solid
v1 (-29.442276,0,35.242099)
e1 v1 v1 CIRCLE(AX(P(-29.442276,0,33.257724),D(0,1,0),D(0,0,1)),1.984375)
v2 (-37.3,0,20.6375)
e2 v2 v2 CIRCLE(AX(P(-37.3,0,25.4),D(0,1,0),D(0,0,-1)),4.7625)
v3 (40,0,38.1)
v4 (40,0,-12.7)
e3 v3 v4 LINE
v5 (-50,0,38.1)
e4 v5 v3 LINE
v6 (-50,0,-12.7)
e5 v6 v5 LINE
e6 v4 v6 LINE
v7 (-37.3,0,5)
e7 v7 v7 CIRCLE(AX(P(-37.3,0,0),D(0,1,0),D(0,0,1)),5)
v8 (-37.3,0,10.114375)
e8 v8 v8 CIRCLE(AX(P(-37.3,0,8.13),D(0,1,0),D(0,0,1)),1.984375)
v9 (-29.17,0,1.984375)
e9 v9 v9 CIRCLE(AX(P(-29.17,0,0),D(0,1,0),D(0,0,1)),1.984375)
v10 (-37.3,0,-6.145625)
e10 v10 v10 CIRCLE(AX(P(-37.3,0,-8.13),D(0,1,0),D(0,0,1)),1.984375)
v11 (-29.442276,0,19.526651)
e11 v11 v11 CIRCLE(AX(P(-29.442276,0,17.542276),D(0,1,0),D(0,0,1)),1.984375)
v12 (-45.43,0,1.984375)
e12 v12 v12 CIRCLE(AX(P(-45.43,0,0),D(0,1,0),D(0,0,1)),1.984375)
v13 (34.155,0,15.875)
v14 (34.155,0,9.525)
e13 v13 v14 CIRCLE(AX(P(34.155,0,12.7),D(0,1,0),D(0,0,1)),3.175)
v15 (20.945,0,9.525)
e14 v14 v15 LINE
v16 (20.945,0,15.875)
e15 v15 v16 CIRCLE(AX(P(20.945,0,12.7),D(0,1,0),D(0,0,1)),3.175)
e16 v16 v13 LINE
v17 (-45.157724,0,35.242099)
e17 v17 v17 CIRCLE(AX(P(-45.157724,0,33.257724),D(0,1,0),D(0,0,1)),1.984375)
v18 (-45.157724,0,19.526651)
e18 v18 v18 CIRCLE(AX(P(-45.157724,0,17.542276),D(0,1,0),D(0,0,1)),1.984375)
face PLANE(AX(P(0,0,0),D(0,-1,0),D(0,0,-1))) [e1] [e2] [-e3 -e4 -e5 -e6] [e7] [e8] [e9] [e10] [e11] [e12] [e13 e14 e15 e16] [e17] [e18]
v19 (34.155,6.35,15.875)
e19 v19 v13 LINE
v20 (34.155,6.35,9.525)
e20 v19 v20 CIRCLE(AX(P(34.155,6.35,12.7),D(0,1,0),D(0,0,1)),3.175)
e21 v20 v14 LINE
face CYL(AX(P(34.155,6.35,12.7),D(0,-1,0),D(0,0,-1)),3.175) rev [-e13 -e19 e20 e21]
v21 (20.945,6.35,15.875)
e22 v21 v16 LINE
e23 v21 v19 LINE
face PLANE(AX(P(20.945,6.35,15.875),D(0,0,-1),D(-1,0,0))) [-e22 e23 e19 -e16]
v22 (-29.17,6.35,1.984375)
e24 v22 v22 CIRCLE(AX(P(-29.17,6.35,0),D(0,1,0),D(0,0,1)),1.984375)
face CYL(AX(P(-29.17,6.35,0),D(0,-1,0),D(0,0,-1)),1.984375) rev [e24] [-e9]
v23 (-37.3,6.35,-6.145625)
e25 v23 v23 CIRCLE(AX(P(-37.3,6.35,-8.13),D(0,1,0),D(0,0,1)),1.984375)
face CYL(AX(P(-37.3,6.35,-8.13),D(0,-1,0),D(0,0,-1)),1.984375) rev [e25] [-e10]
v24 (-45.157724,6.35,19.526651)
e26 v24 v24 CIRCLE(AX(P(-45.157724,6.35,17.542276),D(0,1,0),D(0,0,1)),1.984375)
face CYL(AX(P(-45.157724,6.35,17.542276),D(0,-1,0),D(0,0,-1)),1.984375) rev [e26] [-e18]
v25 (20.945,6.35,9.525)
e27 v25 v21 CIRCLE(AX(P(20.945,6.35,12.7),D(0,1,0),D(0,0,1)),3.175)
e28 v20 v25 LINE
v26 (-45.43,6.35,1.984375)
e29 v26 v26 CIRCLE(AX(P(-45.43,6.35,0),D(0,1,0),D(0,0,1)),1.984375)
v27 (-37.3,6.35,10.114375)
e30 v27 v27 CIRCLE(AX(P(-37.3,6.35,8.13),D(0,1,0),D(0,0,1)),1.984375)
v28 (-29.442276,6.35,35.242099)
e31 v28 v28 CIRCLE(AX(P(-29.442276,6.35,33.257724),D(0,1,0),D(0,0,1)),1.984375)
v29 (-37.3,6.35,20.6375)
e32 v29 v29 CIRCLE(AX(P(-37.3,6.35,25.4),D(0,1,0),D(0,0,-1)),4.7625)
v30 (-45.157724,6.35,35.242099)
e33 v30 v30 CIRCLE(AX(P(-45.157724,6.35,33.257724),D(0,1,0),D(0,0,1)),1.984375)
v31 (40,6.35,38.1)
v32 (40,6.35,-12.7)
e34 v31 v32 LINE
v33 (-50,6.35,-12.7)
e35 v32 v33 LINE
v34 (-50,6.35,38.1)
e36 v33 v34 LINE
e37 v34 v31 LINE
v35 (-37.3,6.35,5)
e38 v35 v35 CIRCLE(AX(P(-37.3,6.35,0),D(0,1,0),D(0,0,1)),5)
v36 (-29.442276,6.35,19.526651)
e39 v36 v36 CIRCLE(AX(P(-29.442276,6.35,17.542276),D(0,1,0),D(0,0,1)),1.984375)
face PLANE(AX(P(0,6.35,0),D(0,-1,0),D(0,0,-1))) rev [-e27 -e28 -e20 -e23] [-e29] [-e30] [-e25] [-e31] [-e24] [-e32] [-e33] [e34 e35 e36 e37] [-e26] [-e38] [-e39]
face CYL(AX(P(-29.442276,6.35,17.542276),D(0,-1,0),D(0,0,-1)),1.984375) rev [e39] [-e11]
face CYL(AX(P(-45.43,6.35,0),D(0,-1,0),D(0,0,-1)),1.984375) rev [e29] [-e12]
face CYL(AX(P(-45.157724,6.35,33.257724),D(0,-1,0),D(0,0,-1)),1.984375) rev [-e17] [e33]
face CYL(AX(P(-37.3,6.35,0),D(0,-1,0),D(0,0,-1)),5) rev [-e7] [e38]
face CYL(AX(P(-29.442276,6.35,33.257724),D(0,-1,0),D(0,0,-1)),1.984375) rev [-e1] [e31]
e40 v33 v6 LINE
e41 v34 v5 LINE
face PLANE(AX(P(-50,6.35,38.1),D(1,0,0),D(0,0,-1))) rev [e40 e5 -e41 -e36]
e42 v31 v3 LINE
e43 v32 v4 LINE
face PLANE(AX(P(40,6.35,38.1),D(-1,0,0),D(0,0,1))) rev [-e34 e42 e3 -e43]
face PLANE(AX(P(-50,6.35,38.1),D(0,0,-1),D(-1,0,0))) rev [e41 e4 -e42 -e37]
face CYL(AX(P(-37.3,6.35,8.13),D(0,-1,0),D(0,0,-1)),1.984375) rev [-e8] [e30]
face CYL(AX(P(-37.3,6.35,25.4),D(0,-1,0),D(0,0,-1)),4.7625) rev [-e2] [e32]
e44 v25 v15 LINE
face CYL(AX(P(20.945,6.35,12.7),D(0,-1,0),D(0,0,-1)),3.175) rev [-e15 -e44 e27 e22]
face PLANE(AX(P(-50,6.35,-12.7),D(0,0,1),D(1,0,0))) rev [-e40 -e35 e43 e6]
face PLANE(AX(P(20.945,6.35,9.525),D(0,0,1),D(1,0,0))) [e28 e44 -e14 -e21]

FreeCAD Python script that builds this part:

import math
import FreeCAD as App
import Part
import Sketcher
Q = App.Units.Quantity


def add_polygon(sketch, points):
    """Adds a closed chain of lines whose ends are joined by coincident constraints."""
    first, n = sketch.GeometryCount, len(points)
    for a, b in zip(points, points[1:] + points[:1]):
        sketch.addGeometry(Part.LineSegment(App.Vector(*a, 0), App.Vector(*b, 0)), False)
    for i in range(n):
        sketch.addConstraint(Sketcher.Constraint("Coincident", first + i, 2, first + (i + 1) % n, 1))

doc = App.newDocument("Part")
body = doc.addObject("PartDesign::Body", "Body")

sketch1 = body.newObject("Sketcher::SketchObject", "Sketch")
sketch1.AttachmentSupport = (doc.getObject("XZ_Plane"), [""])
sketch1.MapMode = "FlatFace"
add_polygon(sketch1, [(-50, -12.7), (-50, 38.1), (40, 38.1), (40, -12.7)])
sketch1.addGeometry(Part.Circle(App.Vector(-45.2, 33.3, 0), App.Vector(0, 0, 1), 2), False)
sketch1.addGeometry(Part.Circle(App.Vector(-29.4, 33.3, 0), App.Vector(0, 0, 1), 2), False)
sketch1.addGeometry(Part.Circle(App.Vector(-37.3, 25.4, 0), App.Vector(0, 0, 1), 4.8), False)
sketch1.addGeometry(Part.Circle(App.Vector(-45.2, 17.5, 0), App.Vector(0, 0, 1), 2), False)
sketch1.addGeometry(Part.Circle(App.Vector(-29.4, 17.5, 0), App.Vector(0, 0, 1), 2), False)
sketch1.addGeometry(Part.ArcOfCircle(Part.Circle(App.Vector(20.9, 12.7, 0), App.Vector(0, 0, 1), 3.2), math.radians(90), math.radians(270)), False)
sketch1.addGeometry(Part.LineSegment(App.Vector(20.9, 9.5, 0), App.Vector(34.2, 9.5, 0)), False)
sketch1.addGeometry(Part.ArcOfCircle(Part.Circle(App.Vector(34.2, 12.7, 0), App.Vector(0, 0, 1), 3.2), math.radians(-90), math.radians(90)), False)
sketch1.addGeometry(Part.LineSegment(App.Vector(34.2, 15.9, 0), App.Vector(20.9, 15.9, 0)), False)
sketch1.addGeometry(Part.Circle(App.Vector(-37.3, 8.1, 0), App.Vector(0, 0, 1), 2), False)
sketch1.addGeometry(Part.Circle(App.Vector(-45.4, 0, 0), App.Vector(0, 0, 1), 2), False)
sketch1.addGeometry(Part.Circle(App.Vector(-37.3, 0, 0), App.Vector(0, 0, 1), 5), False)
sketch1.addGeometry(Part.Circle(App.Vector(-29.2, 0, 0), App.Vector(0, 0, 1), 2), False)
sketch1.addGeometry(Part.Circle(App.Vector(-37.3, -8.1, 0), App.Vector(0, 0, 1), 2), False)
sketch1.addConstraint(Sketcher.Constraint("Tangent", 9, 2, 10, 1))
sketch1.addConstraint(Sketcher.Constraint("Tangent", 10, 2, 11, 1))
sketch1.addConstraint(Sketcher.Constraint("Tangent", 11, 2, 12, 1))
sketch1.addConstraint(Sketcher.Constraint("Tangent", 12, 2, 9, 1))
sketch1.addConstraint(Sketcher.Constraint("Vertical", 0))
sketch1.addConstraint(Sketcher.Constraint("Horizontal", 1))
sketch1.addConstraint(Sketcher.Constraint("Vertical", 2))
sketch1.addConstraint(Sketcher.Constraint("Horizontal", 3))
sketch1.addConstraint(Sketcher.Constraint("Horizontal", 10))
sketch1.addConstraint(Sketcher.Constraint("Horizontal", 12))
sketch1.addConstraint(Sketcher.Constraint("Equal", 4, 5))
sketch1.addConstraint(Sketcher.Constraint("Equal", 5, 7))
sketch1.addConstraint(Sketcher.Constraint("Equal", 7, 8))
sketch1.addConstraint(Sketcher.Constraint("Equal", 8, 13))
sketch1.addConstraint(Sketcher.Constraint("Equal", 13, 14))
sketch1.addConstraint(Sketcher.Constraint("Equal", 14, 16))
sketch1.addConstraint(Sketcher.Constraint("Equal", 16, 17))
sketch1.addConstraint(Sketcher.Constraint("Symmetric", 13, 3, 17, 3, -1))
sketch1.addConstraint(Sketcher.Constraint("PointOnObject", 14, 3, -1))
sketch1.addConstraint(Sketcher.Constraint("PointOnObject", 15, 3, -1))
sketch1.addConstraint(Sketcher.Constraint("PointOnObject", 16, 3, -1))
sketch1.addConstraint(Sketcher.Constraint("Horizontal", 4, 3, 5, 3))
sketch1.addConstraint(Sketcher.Constraint("Horizontal", 7, 3, 8, 3))
sketch1.addConstraint(Sketcher.Constraint("Vertical", 4, 3, 7, 3))
sketch1.addConstraint(Sketcher.Constraint("Vertical", 5, 3, 8, 3))
sketch1.addConstraint(Sketcher.Constraint("Vertical", 6, 3, 13, 3))
sketch1.addConstraint(Sketcher.Constraint("Vertical", 13, 3, 15, 3))
sketch1.addConstraint(Sketcher.Constraint("DistanceY", 0, 1, 0, 2, Q("2 in")))
sketch1.addConstraint(Sketcher.Constraint("Diameter", 4, Q("0.15625 in")))
sketch1.addConstraint(Sketcher.Constraint("Diameter", 6, Q("0.375 in")))
sketch1.addConstraint(Sketcher.Constraint("DistanceY", -1, 1, 6, 3, Q("1 in")))
sketch1.addConstraint(Sketcher.Constraint("Radius", 9, Q("0.125 in")))
sketch1.addConstraint(Sketcher.Constraint("DistanceY", 11, 3, 1, 2, Q("1 in")))
sketch1.addConstraint(Sketcher.Constraint("DistanceY", -1, 1, 9, 3, Q("0.5 in")))
sketch1.addConstraint(Sketcher.Constraint("DistanceX", 0, 2, 6, 3, Q("0.5 in")))
sketch1.addConstraint(Sketcher.Constraint("Diameter", 15, Q("10 mm")))
sketch1.addConstraint(Sketcher.Constraint("DistanceX", 1, 1, 1, 2, Q("90 mm")))
sketch1.addConstraint(Sketcher.Constraint("DistanceX", 10, 1, 10, 2, Q("13.21 mm")))
sketch1.addConstraint(Sketcher.Constraint("DistanceX", 6, 3, -1, 1, Q("37.3 mm")))
sketch1.addConstraint(Sketcher.Constraint("DistanceX", -1, 1, 9, 3, Q("20.945 mm")))
sketch1.addConstraint(Sketcher.Constraint("DistanceY", -1, 1, 13, 3, Q("8.13 mm")))
sketch1.addConstraint(Sketcher.Constraint("DistanceX", 14, 3, -1, 1, Q("45.43 mm")))
sketch1.addConstraint(Sketcher.Constraint("DistanceX", 16, 3, -1, 1, Q("29.17 mm")))
sketch1.addConstraint(Sketcher.Constraint("DistanceX", 4, 3, 5, 3, Q("15.715448 mm")))
sketch1.addConstraint(Sketcher.Constraint("DistanceY", 7, 3, 4, 3, Q("15.715448 mm")))
sketch1.addConstraint(Sketcher.Constraint("DistanceX", 4, 3, -1, 1, Q("45.157724 mm")))
sketch1.addConstraint(Sketcher.Constraint("DistanceY", -1, 1, 4, 3, Q("33.257724 mm")))
pad1 = body.newObject("PartDesign::Pad", "Pad")
pad1.Profile = sketch1
pad1.Length = Q("0.25 in")
pad1.Reversed = True

doc.recompute()
